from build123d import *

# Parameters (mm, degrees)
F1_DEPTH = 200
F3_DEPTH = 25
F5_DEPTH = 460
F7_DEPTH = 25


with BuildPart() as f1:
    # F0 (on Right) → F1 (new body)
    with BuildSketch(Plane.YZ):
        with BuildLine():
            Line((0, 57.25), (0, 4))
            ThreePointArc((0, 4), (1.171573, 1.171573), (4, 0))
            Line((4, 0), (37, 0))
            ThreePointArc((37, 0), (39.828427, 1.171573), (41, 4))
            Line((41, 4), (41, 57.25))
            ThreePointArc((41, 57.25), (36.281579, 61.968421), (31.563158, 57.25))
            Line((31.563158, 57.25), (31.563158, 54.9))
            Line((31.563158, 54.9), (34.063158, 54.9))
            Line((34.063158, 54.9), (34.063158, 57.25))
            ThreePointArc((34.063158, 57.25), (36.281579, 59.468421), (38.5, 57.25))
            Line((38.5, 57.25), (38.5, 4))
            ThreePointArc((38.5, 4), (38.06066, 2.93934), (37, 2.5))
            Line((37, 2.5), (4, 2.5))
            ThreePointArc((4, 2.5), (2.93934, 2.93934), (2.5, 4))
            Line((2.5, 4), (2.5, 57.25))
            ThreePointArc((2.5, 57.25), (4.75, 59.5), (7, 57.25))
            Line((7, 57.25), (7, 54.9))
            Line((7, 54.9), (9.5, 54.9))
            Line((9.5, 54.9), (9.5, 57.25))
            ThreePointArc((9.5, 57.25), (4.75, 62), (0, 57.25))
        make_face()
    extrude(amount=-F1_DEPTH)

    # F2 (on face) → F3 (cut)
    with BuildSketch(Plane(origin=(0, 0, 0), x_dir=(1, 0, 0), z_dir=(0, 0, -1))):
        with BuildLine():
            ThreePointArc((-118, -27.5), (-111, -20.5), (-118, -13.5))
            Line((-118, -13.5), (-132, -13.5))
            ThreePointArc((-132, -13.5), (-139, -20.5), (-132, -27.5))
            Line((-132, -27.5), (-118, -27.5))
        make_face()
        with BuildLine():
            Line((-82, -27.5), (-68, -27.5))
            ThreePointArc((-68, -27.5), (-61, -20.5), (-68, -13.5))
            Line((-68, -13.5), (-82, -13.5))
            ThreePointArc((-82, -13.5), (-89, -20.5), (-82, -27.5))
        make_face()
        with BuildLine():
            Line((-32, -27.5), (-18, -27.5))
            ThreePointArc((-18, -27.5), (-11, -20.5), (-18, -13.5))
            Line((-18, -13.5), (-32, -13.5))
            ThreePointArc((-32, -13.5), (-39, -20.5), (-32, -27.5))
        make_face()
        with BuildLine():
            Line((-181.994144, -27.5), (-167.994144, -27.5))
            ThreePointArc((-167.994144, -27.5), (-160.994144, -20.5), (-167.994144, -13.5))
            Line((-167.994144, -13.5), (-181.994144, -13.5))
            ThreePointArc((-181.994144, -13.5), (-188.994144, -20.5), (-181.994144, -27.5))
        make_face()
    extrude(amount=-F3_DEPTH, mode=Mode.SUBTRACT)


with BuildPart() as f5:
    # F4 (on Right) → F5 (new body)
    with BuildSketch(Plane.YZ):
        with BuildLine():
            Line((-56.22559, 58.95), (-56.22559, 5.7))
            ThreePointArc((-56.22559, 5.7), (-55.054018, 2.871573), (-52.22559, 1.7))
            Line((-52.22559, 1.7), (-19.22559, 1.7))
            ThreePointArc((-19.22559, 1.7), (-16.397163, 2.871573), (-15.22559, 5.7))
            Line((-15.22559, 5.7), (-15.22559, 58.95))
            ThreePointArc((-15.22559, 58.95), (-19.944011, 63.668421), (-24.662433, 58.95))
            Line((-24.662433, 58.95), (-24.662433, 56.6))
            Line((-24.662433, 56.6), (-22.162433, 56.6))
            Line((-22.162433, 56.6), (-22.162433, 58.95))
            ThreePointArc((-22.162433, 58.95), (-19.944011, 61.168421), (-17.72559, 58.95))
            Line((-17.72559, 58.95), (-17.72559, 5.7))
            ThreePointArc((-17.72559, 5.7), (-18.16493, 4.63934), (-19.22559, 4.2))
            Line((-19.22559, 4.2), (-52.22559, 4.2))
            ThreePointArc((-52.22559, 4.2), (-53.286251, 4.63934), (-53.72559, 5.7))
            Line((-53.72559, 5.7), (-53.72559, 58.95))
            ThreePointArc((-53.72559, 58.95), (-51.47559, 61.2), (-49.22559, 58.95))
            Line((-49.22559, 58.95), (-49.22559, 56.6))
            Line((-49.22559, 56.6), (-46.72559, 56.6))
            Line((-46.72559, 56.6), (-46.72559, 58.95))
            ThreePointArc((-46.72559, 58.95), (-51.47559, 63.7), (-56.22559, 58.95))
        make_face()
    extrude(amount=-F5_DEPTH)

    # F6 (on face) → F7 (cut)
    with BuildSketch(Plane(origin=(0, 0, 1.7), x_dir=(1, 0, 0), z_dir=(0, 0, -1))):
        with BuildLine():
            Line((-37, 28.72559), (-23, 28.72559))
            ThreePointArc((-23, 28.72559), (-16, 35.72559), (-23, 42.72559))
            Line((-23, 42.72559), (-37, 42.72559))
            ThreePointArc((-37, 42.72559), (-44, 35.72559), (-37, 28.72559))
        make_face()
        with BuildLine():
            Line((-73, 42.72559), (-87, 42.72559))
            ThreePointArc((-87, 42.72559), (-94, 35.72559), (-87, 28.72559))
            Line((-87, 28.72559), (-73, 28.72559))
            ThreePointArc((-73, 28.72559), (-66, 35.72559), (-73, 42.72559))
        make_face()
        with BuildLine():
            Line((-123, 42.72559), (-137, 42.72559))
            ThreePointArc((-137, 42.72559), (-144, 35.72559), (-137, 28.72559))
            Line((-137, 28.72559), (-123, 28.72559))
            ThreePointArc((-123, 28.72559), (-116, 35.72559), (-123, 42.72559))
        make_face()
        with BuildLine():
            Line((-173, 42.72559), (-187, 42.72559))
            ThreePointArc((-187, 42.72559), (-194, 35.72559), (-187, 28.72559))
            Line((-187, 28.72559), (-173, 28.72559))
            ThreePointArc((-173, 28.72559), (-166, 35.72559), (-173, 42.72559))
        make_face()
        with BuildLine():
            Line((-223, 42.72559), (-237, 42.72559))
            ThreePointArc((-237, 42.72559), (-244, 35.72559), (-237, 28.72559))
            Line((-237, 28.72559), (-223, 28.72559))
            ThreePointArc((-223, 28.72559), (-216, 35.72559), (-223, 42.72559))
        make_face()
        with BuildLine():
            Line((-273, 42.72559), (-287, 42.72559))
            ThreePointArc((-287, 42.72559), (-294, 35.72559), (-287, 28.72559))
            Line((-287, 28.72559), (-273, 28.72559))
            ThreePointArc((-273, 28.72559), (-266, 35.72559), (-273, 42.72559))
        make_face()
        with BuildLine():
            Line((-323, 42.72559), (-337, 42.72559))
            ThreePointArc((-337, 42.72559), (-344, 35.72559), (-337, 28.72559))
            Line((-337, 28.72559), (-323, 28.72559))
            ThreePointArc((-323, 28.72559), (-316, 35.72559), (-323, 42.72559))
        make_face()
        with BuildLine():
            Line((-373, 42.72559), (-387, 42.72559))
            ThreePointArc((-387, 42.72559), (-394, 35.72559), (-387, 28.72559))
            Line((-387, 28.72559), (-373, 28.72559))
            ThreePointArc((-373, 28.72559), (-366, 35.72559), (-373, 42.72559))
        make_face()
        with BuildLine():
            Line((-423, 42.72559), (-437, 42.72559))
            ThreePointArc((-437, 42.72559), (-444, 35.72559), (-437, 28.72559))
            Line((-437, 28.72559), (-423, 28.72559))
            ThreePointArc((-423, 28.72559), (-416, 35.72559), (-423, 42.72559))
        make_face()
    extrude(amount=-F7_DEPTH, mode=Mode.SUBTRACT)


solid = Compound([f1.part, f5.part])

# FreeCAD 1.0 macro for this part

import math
import FreeCAD as App
import Part
import Sketcher
from FreeCAD import Vector

doc = App.newDocument("Part")
body = doc.addObject("PartDesign::Body", "Body")

# Sketch on YZ plane
sketch1 = body.newObject("Sketcher::SketchObject", "Sketch")
sketch1.AttachmentSupport = (doc.getObject("YZ_Plane"), [""])
sketch1.MapMode = "FlatFace"
sketch1.addGeometry(Part.LineSegment(Vector(0, 57.2, 0), Vector(0, 4, 0)), False)
sketch1.addGeometry(Part.ArcOfCircle(Part.Circle(Vector(4, 4, 0), Vector(0, 0, 1), 4), math.radians(-180), math.radians(-90)), False)
sketch1.addGeometry(Part.LineSegment(Vector(4, 0, 0), Vector(37, 0, 0)), False)
sketch1.addGeometry(Part.ArcOfCircle(Part.Circle(Vector(37, 4, 0), Vector(0, 0, 1), 4), math.radians(-90), math.radians(0)), False)
sketch1.addGeometry(Part.LineSegment(Vector(41, 4, 0), Vector(41, 57.2, 0)), False)
sketch1.addGeometry(Part.ArcOfCircle(Part.Circle(Vector(36.3, 57.2, 0), Vector(0, 0, 1), 4.7), math.radians(0), math.radians(180)), False)
sketch1.addGeometry(Part.LineSegment(Vector(31.6, 57.2, 0), Vector(31.6, 54.9, 0)), False)
sketch1.addGeometry(Part.LineSegment(Vector(31.6, 54.9, 0), Vector(34.1, 54.9, 0)), False)
sketch1.addGeometry(Part.LineSegment(Vector(34.1, 54.9, 0), Vector(34.1, 57.2, 0)), False)
sketch1.addGeometry(Part.ArcOfCircle(Part.Circle(Vector(36.3, 57.2, 0), Vector(0, 0, 1), 2.2), math.radians(0), math.radians(180)), False)
sketch1.addGeometry(Part.LineSegment(Vector(38.5, 57.2, 0), Vector(38.5, 4, 0)), False)
sketch1.addGeometry(Part.ArcOfCircle(Part.Circle(Vector(37, 4, 0), Vector(0, 0, 1), 1.5), math.radians(-90), math.radians(0)), False)
sketch1.addGeometry(Part.LineSegment(Vector(37, 2.5, 0), Vector(4, 2.5, 0)), False)
sketch1.addGeometry(Part.ArcOfCircle(Part.Circle(Vector(4, 4, 0), Vector(0, 0, 1), 1.5), math.radians(-180), math.radians(-90)), False)
sketch1.addGeometry(Part.LineSegment(Vector(2.5, 4, 0), Vector(2.5, 57.2, 0)), False)
sketch1.addGeometry(Part.ArcOfCircle(Part.Circle(Vector(4.8, 57.2, 0), Vector(0, 0, 1), 2.2), math.radians(0), math.radians(180)), False)
sketch1.addGeometry(Part.LineSegment(Vector(7, 57.2, 0), Vector(7, 54.9, 0)), False)
sketch1.addGeometry(Part.LineSegment(Vector(7, 54.9, 0), Vector(9.5, 54.9, 0)), False)
sketch1.addGeometry(Part.LineSegment(Vector(9.5, 54.9, 0), Vector(9.5, 57.2, 0)), False)
sketch1.addGeometry(Part.ArcOfCircle(Part.Circle(Vector(4.8, 57.2, 0), Vector(0, 0, 1), 4.8), math.radians(0), math.radians(180)), False)
sketch1.addConstraint(Sketcher.Constraint("Tangent", 0, 2, 1, 1))
sketch1.addConstraint(Sketcher.Constraint("Tangent", 1, 2, 2, 1))
sketch1.addConstraint(Sketcher.Constraint("Tangent", 2, 2, 3, 1))
sketch1.addConstraint(Sketcher.Constraint("Tangent", 3, 2, 4, 1))
sketch1.addConstraint(Sketcher.Constraint("Tangent", 4, 2, 5, 1))
sketch1.addConstraint(Sketcher.Constraint("Tangent", 5, 2, 6, 1))
sketch1.addConstraint(Sketcher.Constraint("Coincident", 6, 2, 7, 1))
sketch1.addConstraint(Sketcher.Constraint("Coincident", 7, 2, 8, 1))
sketch1.addConstraint(Sketcher.Constraint("Tangent", 8, 2, 9, 2))
sketch1.addConstraint(Sketcher.Constraint("Tangent", 9, 1, 10, 1))
sketch1.addConstraint(Sketcher.Constraint("Tangent", 10, 2, 11, 2))
sketch1.addConstraint(Sketcher.Constraint("Tangent", 11, 1, 12, 1))
sketch1.addConstraint(Sketcher.Constraint("Tangent", 12, 2, 13, 2))
sketch1.addConstraint(Sketcher.Constraint("Tangent", 13, 1, 14, 1))
sketch1.addConstraint(Sketcher.Constraint("Tangent", 14, 2, 15, 2))
sketch1.addConstraint(Sketcher.Constraint("Tangent", 15, 1, 16, 1))
sketch1.addConstraint(Sketcher.Constraint("Coincident", 16, 2, 17, 1))
sketch1.addConstraint(Sketcher.Constraint("Coincident", 17, 2, 18, 1))
sketch1.addConstraint(Sketcher.Constraint("Tangent", 18, 2, 19, 1))
sketch1.addConstraint(Sketcher.Constraint("Tangent", 19, 2, 0, 1))
sketch1.addConstraint(Sketcher.Constraint("Vertical", 0))
sketch1.addConstraint(Sketcher.Constraint("Horizontal", 2))
sketch1.addConstraint(Sketcher.Constraint("Vertical", 4))
sketch1.addConstraint(Sketcher.Constraint("Vertical", 6))
sketch1.addConstraint(Sketcher.Constraint("Horizontal", 7))
sketch1.addConstraint(Sketcher.Constraint("Vertical", 8))
sketch1.addConstraint(Sketcher.Constraint("Vertical", 10))
sketch1.addConstraint(Sketcher.Constraint("Horizontal", 12))
sketch1.addConstraint(Sketcher.Constraint("Vertical", 14))
sketch1.addConstraint(Sketcher.Constraint("Vertical", 16))
sketch1.addConstraint(Sketcher.Constraint("Horizontal", 17))
sketch1.addConstraint(Sketcher.Constraint("Vertical", 18))
sketch1.addConstraint(Sketcher.Constraint("Coincident", 9, 3, 5, 3))
sketch1.addConstraint(Sketcher.Constraint("Coincident", 11, 3, 3, 3))
sketch1.addConstraint(Sketcher.Constraint("Coincident", 13, 3, 1, 3))
sketch1.addConstraint(Sketcher.Constraint("Coincident", 19, 3, 15, 3))
sketch1.addConstraint(Sketcher.Constraint("Equal", 1, 3))
sketch1.addConstraint(Sketcher.Constraint("PointOnObject", 0, 2, -2))
sketch1.addConstraint(Sketcher.Constraint("PointOnObject", 1, 2, -1))
sketch1.addConstraint(Sketcher.Constraint("Horizontal", 9, 3, 15, 3))
sketch1.addConstraint(Sketcher.Constraint("Horizontal", 7, 2, 16, 2))
sketch1.addConstraint(Sketcher.Constraint("Radius", 1, 4.0))
sketch1.addConstraint(Sketcher.Constraint("Radius", 11, 1.500001))
sketch1.addConstraint(Sketcher.Constraint("DistanceX", 2, 1, 2, 2, 33.0))
sketch1.addConstraint(Sketcher.Constraint("Radius", 15, 2.25))
sketch1.addConstraint(Sketcher.Constraint("DistanceY", 0, 2, 0, 1, 53.25))
sketch1.addConstraint(Sketcher.Constraint("DistanceY", 6, 2, 6, 1, 2.35))
sketch1.addConstraint(Sketcher.Constraint("Radius", 5, 4.718421))
pad1 = body.newObject("PartDesign::Pad", "Pad")
pad1.Profile = sketch1
pad1.Length = 200
pad1.Reversed = True

# Sketch on XY plane
sketch2 = body.newObject("Sketcher::SketchObject", "Sketch001")
sketch2.AttachmentSupport = (doc.getObject("XY_Plane"), [""])
sketch2.MapMode = "FlatFace"
sketch2.addGeometry(Part.ArcOfCircle(Part.Circle(Vector(-118, 20, 0), Vector(0, 0, 1), 7), math.radians(-90), math.radians(90)), False)
sketch2.addGeometry(Part.LineSegment(Vector(-118, 14, 0), Vector(-132, 14, 0)), False)
sketch2.addGeometry(Part.ArcOfCircle(Part.Circle(Vector(-132, 20, 0), Vector(0, 0, 1), 7), math.radians(90), math.radians(270)), False)
sketch2.addGeometry(Part.LineSegment(Vector(-132, 28, 0), Vector(-118, 28, 0)), False)
sketch2.addGeometry(Part.LineSegment(Vector(-82, 28, 0), Vector(-68, 28, 0)), False)
sketch2.addGeometry(Part.ArcOfCircle(Part.Circle(Vector(-68, 20, 0), Vector(0, 0, 1), 7), math.radians(-90), math.radians(90)), False)
sketch2.addGeometry(Part.LineSegment(Vector(-68, 14, 0), Vector(-82, 14, 0)), False)
sketch2.addGeometry(Part.ArcOfCircle(Part.Circle(Vector(-82, 20, 0), Vector(0, 0, 1), 7), math.radians(90), math.radians(270)), False)
sketch2.addGeometry(Part.LineSegment(Vector(-32, 28, 0), Vector(-18, 28, 0)), False)
sketch2.addGeometry(Part.ArcOfCircle(Part.Circle(Vector(-18, 20, 0), Vector(0, 0, 1), 7), math.radians(-90), math.radians(90)), False)
sketch2.addGeometry(Part.LineSegment(Vector(-18, 14, 0), Vector(-32, 14, 0)), False)
sketch2.addGeometry(Part.ArcOfCircle(Part.Circle(Vector(-32, 20, 0), Vector(0, 0, 1), 7), math.radians(90), math.radians(270)), False)
sketch2.addGeometry(Part.LineSegment(Vector(-182, 28, 0), Vector(-168, 28, 0)), False)
sketch2.addGeometry(Part.ArcOfCircle(Part.Circle(Vector(-168, 20, 0), Vector(0, 0, 1), 7), math.radians(-90), math.radians(90)), False)
sketch2.addGeometry(Part.LineSegment(Vector(-168, 14, 0), Vector(-182, 14, 0)), False)
sketch2.addGeometry(Part.ArcOfCircle(Part.Circle(Vector(-182, 20, 0), Vector(0, 0, 1), 7), math.radians(90), math.radians(270)), False)
sketch2.addConstraint(Sketcher.Constraint("Tangent", 0, 1, 1, 1))
sketch2.addConstraint(Sketcher.Constraint("Tangent", 1, 2, 2, 2))
sketch2.addConstraint(Sketcher.Constraint("Tangent", 2, 1, 3, 1))
sketch2.addConstraint(Sketcher.Constraint("Tangent", 3, 2, 0, 2))
sketch2.addConstraint(Sketcher.Constraint("Tangent", 4, 2, 5, 2))
sketch2.addConstraint(Sketcher.Constraint("Tangent", 5, 1, 6, 1))
sketch2.addConstraint(Sketcher.Constraint("Tangent", 6, 2, 7, 2))
sketch2.addConstraint(Sketcher.Constraint("Tangent", 7, 1, 4, 1))
sketch2.addConstraint(Sketcher.Constraint("Tangent", 8, 2, 9, 2))
sketch2.addConstraint(Sketcher.Constraint("Tangent", 9, 1, 10, 1))
sketch2.addConstraint(Sketcher.Constraint("Tangent", 10, 2, 11, 2))
sketch2.addConstraint(Sketcher.Constraint("Tangent", 11, 1, 8, 1))
sketch2.addConstraint(Sketcher.Constraint("Tangent", 12, 2, 13, 2))
sketch2.addConstraint(Sketcher.Constraint("Tangent", 13, 1, 14, 1))
sketch2.addConstraint(Sketcher.Constraint("Tangent", 14, 2, 15, 2))
sketch2.addConstraint(Sketcher.Constraint("Tangent", 15, 1, 12, 1))
sketch2.addConstraint(Sketcher.Constraint("Horizontal", 1))
sketch2.addConstraint(Sketcher.Constraint("Horizontal", 3))
sketch2.addConstraint(Sketcher.Constraint("Horizontal", 4))
sketch2.addConstraint(Sketcher.Constraint("Horizontal", 6))
sketch2.addConstraint(Sketcher.Constraint("Horizontal", 8))
sketch2.addConstraint(Sketcher.Constraint("Horizontal", 10))
sketch2.addConstraint(Sketcher.Constraint("Horizontal", 12))
sketch2.addConstraint(Sketcher.Constraint("Horizontal", 14))
sketch2.addConstraint(Sketcher.Constraint("Equal", 2, 5))
sketch2.addConstraint(Sketcher.Constraint("Equal", 7, 9))
sketch2.addConstraint(Sketcher.Constraint("Equal", 11, 13))
sketch2.addConstraint(Sketcher.Constraint("Horizontal", 2, 3, 5, 3))
sketch2.addConstraint(Sketcher.Constraint("Horizontal", 7, 3, 9, 3))
sketch2.addConstraint(Sketcher.Constraint("Horizontal", 11, 3, 13, 3))
sketch2.addConstraint(Sketcher.Constraint("Equal", 3, 4))
sketch2.addConstraint(Sketcher.Constraint("Equal", 6, 8))
sketch2.addConstraint(Sketcher.Constraint("Equal", 10, 12))
sketch2.addConstraint(Sketcher.Constraint("Radius", 0, 7.0))
sketch2.addConstraint(Sketcher.Constraint("DistanceX", 1, 2, 1, 1, 14.0))
sketch2.addConstraint(Sketcher.Constraint("DistanceX", 0, 3, -1, 1, 118.0))
sketch2.addConstraint(Sketcher.Constraint("DistanceX", 5, 3, -1, 1, 68.0))
sketch2.addConstraint(Sketcher.Constraint("DistanceX", 9, 3, -1, 1, 18.0))
sketch2.addConstraint(Sketcher.Constraint("DistanceY", -1, 1, 0, 3, 20.5))
sketch2.addConstraint(Sketcher.Constraint("DistanceX", 13, 3, -1, 1, 167.994144))
pocket1 = body.newObject("PartDesign::Pocket", "Pocket")
pocket1.Profile = sketch2
pocket1.Length = 25
pocket1.Reversed = True
body2 = doc.addObject("PartDesign::Body", "Body001")

# Sketch on YZ plane
sketch3 = body2.newObject("Sketcher::SketchObject", "Sketch002")
sketch3.AttachmentSupport = (doc.getObject("YZ_Plane001"), [""])
sketch3.MapMode = "FlatFace"
sketch3.addGeometry(Part.LineSegment(Vector(-56.2, 59, 0), Vector(-56.2, 5.7, 0)), False)
sketch3.addGeometry(Part.ArcOfCircle(Part.Circle(Vector(-52.2, 5.7, 0), Vector(0, 0, 1), 4), math.radians(180), math.radians(270)), False)
sketch3.addGeometry(Part.LineSegment(Vector(-52.2, 1.7, 0), Vector(-19.2, 1.7, 0)), False)
sketch3.addGeometry(Part.ArcOfCircle(Part.Circle(Vector(-19.2, 5.7, 0), Vector(0, 0, 1), 4), math.radians(-90), math.radians(0)), False)
sketch3.addGeometry(Part.LineSegment(Vector(-15.2, 5.7, 0), Vector(-15.2, 59, 0)), False)
sketch3.addGeometry(Part.ArcOfCircle(Part.Circle(Vector(-19.9, 58.9, 0), Vector(0, 0, 1), 4.7), math.radians(0), math.radians(180)), False)
sketch3.addGeometry(Part.LineSegment(Vector(-24.7, 59, 0), Vector(-24.7, 56.6, 0)), False)
sketch3.addGeometry(Part.LineSegment(Vector(-24.7, 56.6, 0), Vector(-22.2, 56.6, 0)), False)
sketch3.addGeometry(Part.LineSegment(Vector(-22.2, 56.6, 0), Vector(-22.2, 59, 0)), False)
sketch3.addGeometry(Part.ArcOfCircle(Part.Circle(Vector(-19.9, 58.9, 0), Vector(0, 0, 1), 2.2), math.radians(0), math.radians(180)), False)
sketch3.addGeometry(Part.LineSegment(Vector(-17.7, 59, 0), Vector(-17.7, 5.7, 0)), False)
sketch3.addGeometry(Part.ArcOfCircle(Part.Circle(Vector(-19.2, 5.7, 0), Vector(0, 0, 1), 1.5), math.radians(-90), math.radians(0)), False)
sketch3.addGeometry(Part.LineSegment(Vector(-19.2, 4.2, 0), Vector(-52.2, 4.2, 0)), False)
sketch3.addGeometry(Part.ArcOfCircle(Part.Circle(Vector(-52.2, 5.7, 0), Vector(0, 0, 1), 1.5), math.radians(180), math.radians(270)), False)
sketch3.addGeometry(Part.LineSegment(Vector(-53.7, 5.7, 0), Vector(-53.7, 59, 0)), False)
sketch3.addGeometry(Part.ArcOfCircle(Part.Circle(Vector(-51.5, 59, 0), Vector(0, 0, 1), 2.2), math.radians(0), math.radians(180)), False)
sketch3.addGeometry(Part.LineSegment(Vector(-49.2, 59, 0), Vector(-49.2, 56.6, 0)), False)
sketch3.addGeometry(Part.LineSegment(Vector(-49.2, 56.6, 0), Vector(-46.7, 56.6, 0)), False)
sketch3.addGeometry(Part.LineSegment(Vector(-46.7, 56.6, 0), Vector(-46.7, 59, 0)), False)
sketch3.addGeometry(Part.ArcOfCircle(Part.Circle(Vector(-51.5, 59, 0), Vector(0, 0, 1), 4.8), math.radians(0), math.radians(180)), False)
sketch3.addConstraint(Sketcher.Constraint("Tangent", 0, 2, 1, 1))
sketch3.addConstraint(Sketcher.Constraint("Tangent", 1, 2, 2, 1))
sketch3.addConstraint(Sketcher.Constraint("Tangent", 2, 2, 3, 1))
sketch3.addConstraint(Sketcher.Constraint("Tangent", 3, 2, 4, 1))
sketch3.addConstraint(Sketcher.Constraint("Tangent", 4, 2, 5, 1))
sketch3.addConstraint(Sketcher.Constraint("Tangent", 5, 2, 6, 1))
sketch3.addConstraint(Sketcher.Constraint("Coincident", 6, 2, 7, 1))
sketch3.addConstraint(Sketcher.Constraint("Coincident", 7, 2, 8, 1))
sketch3.addConstraint(Sketcher.Constraint("Tangent", 8, 2, 9, 2))
sketch3.addConstraint(Sketcher.Constraint("Tangent", 9, 1, 10, 1))
sketch3.addConstraint(Sketcher.Constraint("Tangent", 10, 2, 11, 2))
sketch3.addConstraint(Sketcher.Constraint("Tangent", 11, 1, 12, 1))
sketch3.addConstraint(Sketcher.Constraint("Tangent", 12, 2, 13, 2))
sketch3.addConstraint(Sketcher.Constraint("Tangent", 13, 1, 14, 1))
sketch3.addConstraint(Sketcher.Constraint("Tangent", 14, 2, 15, 2))
sketch3.addConstraint(Sketcher.Constraint("Tangent", 15, 1, 16, 1))
sketch3.addConstraint(Sketcher.Constraint("Coincident", 16, 2, 17, 1))
sketch3.addConstraint(Sketcher.Constraint("Coincident", 17, 2, 18, 1))
sketch3.addConstraint(Sketcher.Constraint("Tangent", 18, 2, 19, 1))
sketch3.addConstraint(Sketcher.Constraint("Tangent", 19, 2, 0, 1))
sketch3.addConstraint(Sketcher.Constraint("Vertical", 0))
sketch3.addConstraint(Sketcher.Constraint("Horizontal", 2))
sketch3.addConstraint(Sketcher.Constraint("Vertical", 4))
sketch3.addConstraint(Sketcher.Constraint("Vertical", 6))
sketch3.addConstraint(Sketcher.Constraint("Horizontal", 7))
sketch3.addConstraint(Sketcher.Constraint("Vertical", 8))
sketch3.addConstraint(Sketcher.Constraint("Vertical", 10))
sketch3.addConstraint(Sketcher.Constraint("Horizontal", 12))
sketch3.addConstraint(Sketcher.Constraint("Vertical", 14))
sketch3.addConstraint(Sketcher.Constraint("Vertical", 16))
sketch3.addConstraint(Sketcher.Constraint("Horizontal", 17))
sketch3.addConstraint(Sketcher.Constraint("Vertical", 18))
sketch3.addConstraint(Sketcher.Constraint("Coincident", 9, 3, 5, 3))
sketch3.addConstraint(Sketcher.Constraint("Coincident", 11, 3, 3, 3))
sketch3.addConstraint(Sketcher.Constraint("Coincident", 13, 3, 1, 3))
sketch3.addConstraint(Sketcher.Constraint("Coincident", 19, 3, 15, 3))
sketch3.addConstraint(Sketcher.Constraint("Equal", 1, 3))
sketch3.addConstraint(Sketcher.Constraint("Horizontal", 9, 3, 15, 3))
sketch3.addConstraint(Sketcher.Constraint("Horizontal", 7, 2, 16, 2))
sketch3.addConstraint(Sketcher.Constraint("Radius", 1, 3.999999))
sketch3.addConstraint(Sketcher.Constraint("Radius", 11, 1.500001))
sketch3.addConstraint(Sketcher.Constraint("DistanceX", 2, 1, 2, 2, 33.0))
sketch3.addConstraint(Sketcher.Constraint("Radius", 15, 2.25))
sketch3.addConstraint(Sketcher.Constraint("DistanceY", 0, 2, 0, 1, 53.25))
sketch3.addConstraint(Sketcher.Constraint("DistanceY", 6, 2, 6, 1, 2.35))
sketch3.addConstraint(Sketcher.Constraint("DistanceY", -1, 1, 1, 3, 5.699999))
sketch3.addConstraint(Sketcher.Constraint("Radius", 5, 4.718421))
sketch3.addConstraint(Sketcher.Constraint("DistanceX", 1, 3, -1, 1, 52.225591))
pad2 = body2.newObject("PartDesign::Pad", "Pad001")
pad2.Profile = sketch3
pad2.Length = 460
pad2.Reversed = True

# Sketch on XY plane
sketch4 = body2.newObject("Sketcher::SketchObject", "Sketch003")
sketch4.AttachmentSupport = (doc.getObject("XY_Plane001"), [""])
sketch4.MapMode = "FlatFace"
sketch4.AttachmentOffset = App.Placement(Vector(0, 0, 1.7), App.Rotation())
sketch4.addGeometry(Part.LineSegment(Vector(-37, -29, 0), Vector(-23, -29, 0)), False)
sketch4.addGeometry(Part.ArcOfCircle(Part.Circle(Vector(-23, -36, 0), Vector(0, 0, 1), 7), math.radians(-90), math.radians(90)), False)
sketch4.addGeometry(Part.LineSegment(Vector(-23, -43, 0), Vector(-37, -43, 0)), False)
sketch4.addGeometry(Part.ArcOfCircle(Part.Circle(Vector(-37, -36, 0), Vector(0, 0, 1), 7), math.radians(90), math.radians(270)), False)
sketch4.addGeometry(Part.LineSegment(Vector(-73, -43, 0), Vector(-87, -43, 0)), False)
sketch4.addGeometry(Part.ArcOfCircle(Part.Circle(Vector(-87, -36, 0), Vector(0, 0, 1), 7), math.radians(90), math.radians(270)), False)
sketch4.addGeometry(Part.LineSegment(Vector(-87, -29, 0), Vector(-73, -29, 0)), False)
sketch4.addGeometry(Part.ArcOfCircle(Part.Circle(Vector(-73, -36, 0), Vector(0, 0, 1), 7), math.radians(-90), math.radians(90)), False)
sketch4.addGeometry(Part.LineSegment(Vector(-123, -43, 0), Vector(-137, -43, 0)), False)
sketch4.addGeometry(Part.ArcOfCircle(Part.Circle(Vector(-137, -36, 0), Vector(0, 0, 1), 7), math.radians(90), math.radians(270)), False)
sketch4.addGeometry(Part.LineSegment(Vector(-137, -29, 0), Vector(-123, -29, 0)), False)
sketch4.addGeometry(Part.ArcOfCircle(Part.Circle(Vector(-123, -36, 0), Vector(0, 0, 1), 7), math.radians(-90), math.radians(90)), False)
sketch4.addGeometry(Part.LineSegment(Vector(-173, -43, 0), Vector(-187, -43, 0)), False)
sketch4.addGeometry(Part.ArcOfCircle(Part.Circle(Vector(-187, -36, 0), Vector(0, 0, 1), 7), math.radians(90), math.radians(270)), False)
sketch4.addGeometry(Part.LineSegment(Vector(-187, -29, 0), Vector(-173, -29, 0)), False)
sketch4.addGeometry(Part.ArcOfCircle(Part.Circle(Vector(-173, -36, 0), Vector(0, 0, 1), 7), math.radians(-90), math.radians(90)), False)
sketch4.addGeometry(Part.LineSegment(Vector(-223, -43, 0), Vector(-237, -43, 0)), False)
sketch4.addGeometry(Part.ArcOfCircle(Part.Circle(Vector(-237, -36, 0), Vector(0, 0, 1), 7), math.radians(90), math.radians(270)), False)
sketch4.addGeometry(Part.LineSegment(Vector(-237, -29, 0), Vector(-223, -29, 0)), False)
sketch4.addGeometry(Part.ArcOfCircle(Part.Circle(Vector(-223, -36, 0), Vector(0, 0, 1), 7), math.radians(-90), math.radians(90)), False)
sketch4.addGeometry(Part.LineSegment(Vector(-273, -43, 0), Vector(-287, -43, 0)), False)
sketch4.addGeometry(Part.ArcOfCircle(Part.Circle(Vector(-287, -36, 0), Vector(0, 0, 1), 7), math.radians(90), math.radians(270)), False)
sketch4.addGeometry(Part.LineSegment(Vector(-287, -29, 0), Vector(-273, -29, 0)), False)
sketch4.addGeometry(Part.ArcOfCircle(Part.Circle(Vector(-273, -36, 0), Vector(0, 0, 1), 7), math.radians(-90), math.radians(90)), False)
sketch4.addGeometry(Part.LineSegment(Vector(-323, -43, 0), Vector(-337, -43, 0)), False)
sketch4.addGeometry(Part.ArcOfCircle(Part.Circle(Vector(-337, -36, 0), Vector(0, 0, 1), 7), math.radians(90), math.radians(270)), False)
sketch4.addGeometry(Part.LineSegment(Vector(-337, -29, 0), Vector(-323, -29, 0)), False)
sketch4.addGeometry(Part.ArcOfCircle(Part.Circle(Vector(-323, -36, 0), Vector(0, 0, 1), 7), math.radians(-90), math.radians(90)), False)
sketch4.addGeometry(Part.LineSegment(Vector(-373, -43, 0), Vector(-387, -43, 0)), False)
sketch4.addGeometry(Part.ArcOfCircle(Part.Circle(Vector(-387, -36, 0), Vector(0, 0, 1), 7), math.radians(90), math.radians(270)), False)
sketch4.addGeometry(Part.LineSegment(Vector(-387, -29, 0), Vector(-373, -29, 0)), False)
sketch4.addGeometry(Part.ArcOfCircle(Part.Circle(Vector(-373, -36, 0), Vector(0, 0, 1), 7), math.radians(-90), math.radians(90)), False)
sketch4.addGeometry(Part.LineSegment(Vector(-423, -43, 0), Vector(-437, -43, 0)), False)
sketch4.addGeometry(Part.ArcOfCircle(Part.Circle(Vector(-437, -36, 0), Vector(0, 0, 1), 7), math.radians(90), math.radians(270)), False)
sketch4.addGeometry(Part.LineSegment(Vector(-437, -29, 0), Vector(-423, -29, 0)), False)
sketch4.addGeometry(Part.ArcOfCircle(Part.Circle(Vector(-423, -36, 0), Vector(0, 0, 1), 7), math.radians(-90), math.radians(90)), False)
sketch4.addConstraint(Sketcher.Constraint("Tangent", 0, 2, 1, 2))
sketch4.addConstraint(Sketcher.Constraint("Tangent", 1, 1, 2, 1))
sketch4.addConstraint(Sketcher.Constraint("Tangent", 2, 2, 3, 2))
sketch4.addConstraint(Sketcher.Constraint("Tangent", 3, 1, 0, 1))
sketch4.addConstraint(Sketcher.Constraint("Tangent", 4, 2, 5, 2))
sketch4.addConstraint(Sketcher.Constraint("Tangent", 5, 1, 6, 1))
sketch4.addConstraint(Sketcher.Constraint("Tangent", 6, 2, 7, 2))
sketch4.addConstraint(Sketcher.Constraint("Tangent", 7, 1, 4, 1))
sketch4.addConstraint(Sketcher.Constraint("Tangent", 8, 2, 9, 2))
sketch4.addConstraint(Sketcher.Constraint("Tangent", 9, 1, 10, 1))
sketch4.addConstraint(Sketcher.Constraint("Tangent", 10, 2, 11, 2))
sketch4.addConstraint(Sketcher.Constraint("Tangent", 11, 1, 8, 1))
sketch4.addConstraint(Sketcher.Constraint("Tangent", 12, 2, 13, 2))
sketch4.addConstraint(Sketcher.Constraint("Tangent", 13, 1, 14, 1))
sketch4.addConstraint(Sketcher.Constraint("Tangent", 14, 2, 15, 2))
sketch4.addConstraint(Sketcher.Constraint("Tangent", 15, 1, 12, 1))
sketch4.addConstraint(Sketcher.Constraint("Tangent", 16, 2, 17, 2))
sketch4.addConstraint(Sketcher.Constraint("Tangent", 17, 1, 18, 1))
sketch4.addConstraint(Sketcher.Constraint("Tangent", 18, 2, 19, 2))
sketch4.addConstraint(Sketcher.Constraint("Tangent", 19, 1, 16, 1))
sketch4.addConstraint(Sketcher.Constraint("Tangent", 20, 2, 21, 2))
sketch4.addConstraint(Sketcher.Constraint("Tangent", 21, 1, 22, 1))
sketch4.addConstraint(Sketcher.Constraint("Tangent", 22, 2, 23, 2))
sketch4.addConstraint(Sketcher.Constraint("Tangent", 23, 1, 20, 1))
sketch4.addConstraint(Sketcher.Constraint("Tangent", 24, 2, 25, 2))
sketch4.addConstraint(Sketcher.Constraint("Tangent", 25, 1, 26, 1))
sketch4.addConstraint(Sketcher.Constraint("Tangent", 26, 2, 27, 2))
sketch4.addConstraint(Sketcher.Constraint("Tangent", 27, 1, 24, 1))
sketch4.addConstraint(Sketcher.Constraint("Tangent", 28, 2, 29, 2))
sketch4.addConstraint(Sketcher.Constraint("Tangent", 29, 1, 30, 1))
sketch4.addConstraint(Sketcher.Constraint("Tangent", 30, 2, 31, 2))
sketch4.addConstraint(Sketcher.Constraint("Tangent", 31, 1, 28, 1))
sketch4.addConstraint(Sketcher.Constraint("Tangent", 32, 2, 33, 2))
sketch4.addConstraint(Sketcher.Constraint("Tangent", 33, 1, 34, 1))
sketch4.addConstraint(Sketcher.Constraint("Tangent", 34, 2, 35, 2))
sketch4.addConstraint(Sketcher.Constraint("Tangent", 35, 1, 32, 1))
sketch4.addConstraint(Sketcher.Constraint("Horizontal", 0))
sketch4.addConstraint(Sketcher.Constraint("Horizontal", 2))
sketch4.addConstraint(Sketcher.Constraint("Horizontal", 4))
sketch4.addConstraint(Sketcher.Constraint("Horizontal", 6))
sketch4.addConstraint(Sketcher.Constraint("Horizontal", 8))
sketch4.addConstraint(Sketcher.Constraint("Horizontal", 10))
sketch4.addConstraint(Sketcher.Constraint("Horizontal", 12))
sketch4.addConstraint(Sketcher.Constraint("Horizontal", 14))
sketch4.addConstraint(Sketcher.Constraint("Horizontal", 16))
sketch4.addConstraint(Sketcher.Constraint("Horizontal", 18))
sketch4.addConstraint(Sketcher.Constraint("Horizontal", 20))
sketch4.addConstraint(Sketcher.Constraint("Horizontal", 22))
sketch4.addConstraint(Sketcher.Constraint("Horizontal", 24))
sketch4.addConstraint(Sketcher.Constraint("Horizontal", 26))
sketch4.addConstraint(Sketcher.Constraint("Horizontal", 28))
sketch4.addConstraint(Sketcher.Constraint("Horizontal", 30))
sketch4.addConstraint(Sketcher.Constraint("Horizontal", 32))
sketch4.addConstraint(Sketcher.Constraint("Horizontal", 34))
sketch4.addConstraint(Sketcher.Constraint("Equal", 3, 5))
sketch4.addConstraint(Sketcher.Constraint("Equal", 7, 9))
sketch4.addConstraint(Sketcher.Constraint("Equal", 11, 13))
sketch4.addConstraint(Sketcher.Constraint("Equal", 15, 17))
sketch4.addConstraint(Sketcher.Constraint("Equal", 19, 21))
sketch4.addConstraint(Sketcher.Constraint("Equal", 23, 25))
sketch4.addConstraint(Sketcher.Constraint("Equal", 27, 29))
sketch4.addConstraint(Sketcher.Constraint("Equal", 31, 33))
sketch4.addConstraint(Sketcher.Constraint("Horizontal", 3, 3, 5, 3))
sketch4.addConstraint(Sketcher.Constraint("Horizontal", 7, 3, 9, 3))
sketch4.addConstraint(Sketcher.Constraint("Horizontal", 11, 3, 13, 3))
sketch4.addConstraint(Sketcher.Constraint("Horizontal", 15, 3, 17, 3))
sketch4.addConstraint(Sketcher.Constraint("Horizontal", 19, 3, 21, 3))
sketch4.addConstraint(Sketcher.Constraint("Horizontal", 23, 3, 25, 3))
sketch4.addConstraint(Sketcher.Constraint("Horizontal", 27, 3, 29, 3))
sketch4.addConstraint(Sketcher.Constraint("Horizontal", 31, 3, 33, 3))
sketch4.addConstraint(Sketcher.Constraint("Equal", 2, 4))
sketch4.addConstraint(Sketcher.Constraint("Equal", 6, 8))
sketch4.addConstraint(Sketcher.Constraint("Equal", 10, 12))
sketch4.addConstraint(Sketcher.Constraint("Equal", 14, 16))
sketch4.addConstraint(Sketcher.Constraint("Equal", 18, 20))
sketch4.addConstraint(Sketcher.Constraint("Equal", 22, 24))
sketch4.addConstraint(Sketcher.Constraint("Equal", 26, 28))
sketch4.addConstraint(Sketcher.Constraint("Equal", 30, 32))
sketch4.addConstraint(Sketcher.Constraint("Radius", 1, 7.0))
sketch4.addConstraint(Sketcher.Constraint("DistanceX", 0, 1, 0, 2, 14.0))
sketch4.addConstraint(Sketcher.Constraint("DistanceX", 1, 3, -1, 1, 23.0))
sketch4.addConstraint(Sketcher.Constraint("DistanceX", 5, 3, -1, 1, 87.0))
sketch4.addConstraint(Sketcher.Constraint("DistanceX", 9, 3, -1, 1, 137.0))
sketch4.addConstraint(Sketcher.Constraint("DistanceX", 13, 3, -1, 1, 187.0))
sketch4.addConstraint(Sketcher.Constraint("DistanceX", 17, 3, -1, 1, 237.0))
sketch4.addConstraint(Sketcher.Constraint("DistanceX", 21, 3, -1, 1, 287.0))
sketch4.addConstraint(Sketcher.Constraint("DistanceX", 25, 3, -1, 1, 337.0))
sketch4.addConstraint(Sketcher.Constraint("DistanceX", 29, 3, -1, 1, 387.0))
sketch4.addConstraint(Sketcher.Constraint("DistanceX", 33, 3, -1, 1, 437.0))
sketch4.addConstraint(Sketcher.Constraint("DistanceY", 1, 3, -1, 1, 35.72559))
pocket2 = body2.newObject("PartDesign::Pocket", "Pocket001")
pocket2.Profile = sketch4
pocket2.Length = 25
pocket2.Reversed = True

doc.recompute()
